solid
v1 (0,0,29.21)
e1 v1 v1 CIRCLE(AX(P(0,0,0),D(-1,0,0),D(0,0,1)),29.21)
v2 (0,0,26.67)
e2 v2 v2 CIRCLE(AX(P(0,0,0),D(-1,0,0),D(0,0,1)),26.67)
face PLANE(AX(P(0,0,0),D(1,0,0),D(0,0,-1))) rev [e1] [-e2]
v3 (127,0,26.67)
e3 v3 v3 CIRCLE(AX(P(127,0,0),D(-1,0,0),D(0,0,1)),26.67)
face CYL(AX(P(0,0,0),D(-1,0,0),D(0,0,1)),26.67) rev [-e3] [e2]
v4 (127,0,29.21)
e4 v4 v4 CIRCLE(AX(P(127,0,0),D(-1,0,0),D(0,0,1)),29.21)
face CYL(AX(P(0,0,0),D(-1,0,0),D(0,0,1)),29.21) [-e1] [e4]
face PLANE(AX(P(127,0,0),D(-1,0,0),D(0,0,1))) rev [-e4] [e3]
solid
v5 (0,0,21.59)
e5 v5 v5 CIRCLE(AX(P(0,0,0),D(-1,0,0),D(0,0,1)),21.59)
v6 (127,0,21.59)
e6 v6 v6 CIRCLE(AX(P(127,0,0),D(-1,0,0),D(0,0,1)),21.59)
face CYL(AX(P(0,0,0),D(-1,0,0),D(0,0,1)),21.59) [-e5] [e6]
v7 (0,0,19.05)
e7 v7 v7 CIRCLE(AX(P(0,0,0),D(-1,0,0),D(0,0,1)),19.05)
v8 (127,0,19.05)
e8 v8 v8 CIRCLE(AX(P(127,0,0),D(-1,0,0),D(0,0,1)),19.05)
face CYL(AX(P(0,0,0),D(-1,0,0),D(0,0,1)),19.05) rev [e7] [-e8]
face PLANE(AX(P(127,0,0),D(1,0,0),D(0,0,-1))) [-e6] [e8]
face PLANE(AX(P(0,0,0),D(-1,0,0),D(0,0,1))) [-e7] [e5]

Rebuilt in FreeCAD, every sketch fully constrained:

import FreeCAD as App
import Part
import Sketcher
from FreeCAD import Vector
Q = App.Units.Quantity

doc = App.newDocument("Part")
params = doc.addObject("Spreadsheet::Sheet", "Params")
for row, (alias, value) in enumerate([
    ("sketch1_width", "5 in"),
    ("sketch1_height", "0.1 in"),
    ("revolution_angle", "360 deg"),
], start=1):
    params.set(f"A{row}", alias)
    params.set(f"B{row}", "=" + value)
    params.setAlias(f"B{row}", alias)

body = doc.addObject("PartDesign::Body", "Body")
body.AllowCompound = True

# Sketch on XY plane
sketch1 = body.newObject("Sketcher::SketchObject", "Sketch")
sketch1.AttachmentSupport = (doc.getObject("XY_Plane"), [""])
sketch1.MapMode = "FlatFace"
sketch1.addGeometry([
    Part.LineSegment(Vector(0, 21.59, 0), Vector(0, 19.05, 0)),  # 0
    Part.LineSegment(Vector(0, 19.05, 0), Vector(127, 19.05, 0)),  # 1
    Part.LineSegment(Vector(127, 19.05, 0), Vector(127, 21.59, 0)),  # 2
    Part.LineSegment(Vector(127, 21.59, 0), Vector(0, 21.59, 0)),  # 3
    Part.LineSegment(Vector(0, 29.21, 0), Vector(0, 26.67, 0)),  # 4
    Part.LineSegment(Vector(0, 26.67, 0), Vector(127, 26.67, 0)),  # 5
    Part.LineSegment(Vector(127, 26.67, 0), Vector(127, 29.21, 0)),  # 6
    Part.LineSegment(Vector(127, 29.21, 0), Vector(0, 29.21, 0)),  # 7
], False)
sketch1.addConstraint([
    Sketcher.Constraint("Coincident", 0, 2, 1, 1),
    Sketcher.Constraint("Coincident", 1, 2, 2, 1),
    Sketcher.Constraint("Coincident", 2, 2, 3, 1),
    Sketcher.Constraint("Coincident", 3, 2, 0, 1),
    Sketcher.Constraint("Coincident", 4, 2, 5, 1),
    Sketcher.Constraint("Coincident", 5, 2, 6, 1),
    Sketcher.Constraint("Coincident", 6, 2, 7, 1),
    Sketcher.Constraint("Coincident", 7, 2, 4, 1),
    Sketcher.Constraint("Vertical", 0),
    Sketcher.Constraint("Horizontal", 1),
    Sketcher.Constraint("Vertical", 2),
    Sketcher.Constraint("Horizontal", 3),
    Sketcher.Constraint("Vertical", 4),
    Sketcher.Constraint("Horizontal", 5),
    Sketcher.Constraint("Vertical", 6),
    Sketcher.Constraint("Horizontal", 7),
    Sketcher.Constraint("PointOnObject", 0, 2, -2),
    Sketcher.Constraint("PointOnObject", 4, 2, -2),
    Sketcher.Constraint("Vertical", 2, 2, 5, 2),
    Sketcher.Constraint("Equal", 2, 4),
    Sketcher.Constraint("DistanceX", 1, 1, 1, 2, Q("5 in")),
    Sketcher.Constraint("DistanceY", 0, 2, 0, 1, Q("0.1 in")),
    Sketcher.Constraint("DistanceY", 3, 2, 4, 2, Q("0.2 in")),
    Sketcher.Constraint("DistanceY", -1, 1, 0, 2, Q("0.75 in")),
])
sketch1.setExpression("Constraints[20]", "Params.sketch1_width")
sketch1.setExpression("Constraints[21]", "Params.sketch1_height")
revolution = body.newObject("PartDesign::Revolution", "Revolution")
revolution.Profile = sketch1
revolution.ReferenceAxis = (sketch1, ["H_Axis"])
revolution.setExpression("Angle", "Params.revolution_angle")

doc.recompute()
